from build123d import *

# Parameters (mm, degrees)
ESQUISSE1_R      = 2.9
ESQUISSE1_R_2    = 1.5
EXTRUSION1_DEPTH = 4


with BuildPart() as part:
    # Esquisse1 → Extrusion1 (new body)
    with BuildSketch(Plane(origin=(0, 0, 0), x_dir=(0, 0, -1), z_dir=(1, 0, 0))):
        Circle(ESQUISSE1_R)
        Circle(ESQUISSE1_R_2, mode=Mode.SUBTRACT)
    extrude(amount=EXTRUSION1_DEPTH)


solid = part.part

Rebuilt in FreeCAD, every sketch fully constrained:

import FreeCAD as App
import Part
import Sketcher
Q = App.Units.Quantity

doc = App.newDocument("Part")
body = doc.addObject("PartDesign::Body", "Body")

sketch1 = doc.addObject("Sketcher::SketchObject", "Sketch")
body.addObject(sketch1)
sketch1.AttachmentSupport = (doc.YZ_Plane, [""])
sketch1.MapMode = "FlatFace"
sketch1.addGeometry([
    Part.Circle(App.Vector(0, 0, 0), App.Vector(0, 0, 1), 2.9),
    Part.Circle(App.Vector(0, 0, 0), App.Vector(0, 0, 1), 1.5),
], False)
sketch1.addConstraint([
    Sketcher.Constraint("Coincident", 0, 3, -1, 1),
    Sketcher.Constraint("Coincident", 1, 3, -1, 1),
    Sketcher.Constraint("Diameter", 1, Q("3 mm")),
    Sketcher.Constraint("Diameter", 0, Q("5.8 mm")),
])
pad1 = doc.addObject("PartDesign::Pad", "Pad")
body.addObject(pad1)
pad1.Profile = sketch1
pad1.Length = 4

doc.recompute()
